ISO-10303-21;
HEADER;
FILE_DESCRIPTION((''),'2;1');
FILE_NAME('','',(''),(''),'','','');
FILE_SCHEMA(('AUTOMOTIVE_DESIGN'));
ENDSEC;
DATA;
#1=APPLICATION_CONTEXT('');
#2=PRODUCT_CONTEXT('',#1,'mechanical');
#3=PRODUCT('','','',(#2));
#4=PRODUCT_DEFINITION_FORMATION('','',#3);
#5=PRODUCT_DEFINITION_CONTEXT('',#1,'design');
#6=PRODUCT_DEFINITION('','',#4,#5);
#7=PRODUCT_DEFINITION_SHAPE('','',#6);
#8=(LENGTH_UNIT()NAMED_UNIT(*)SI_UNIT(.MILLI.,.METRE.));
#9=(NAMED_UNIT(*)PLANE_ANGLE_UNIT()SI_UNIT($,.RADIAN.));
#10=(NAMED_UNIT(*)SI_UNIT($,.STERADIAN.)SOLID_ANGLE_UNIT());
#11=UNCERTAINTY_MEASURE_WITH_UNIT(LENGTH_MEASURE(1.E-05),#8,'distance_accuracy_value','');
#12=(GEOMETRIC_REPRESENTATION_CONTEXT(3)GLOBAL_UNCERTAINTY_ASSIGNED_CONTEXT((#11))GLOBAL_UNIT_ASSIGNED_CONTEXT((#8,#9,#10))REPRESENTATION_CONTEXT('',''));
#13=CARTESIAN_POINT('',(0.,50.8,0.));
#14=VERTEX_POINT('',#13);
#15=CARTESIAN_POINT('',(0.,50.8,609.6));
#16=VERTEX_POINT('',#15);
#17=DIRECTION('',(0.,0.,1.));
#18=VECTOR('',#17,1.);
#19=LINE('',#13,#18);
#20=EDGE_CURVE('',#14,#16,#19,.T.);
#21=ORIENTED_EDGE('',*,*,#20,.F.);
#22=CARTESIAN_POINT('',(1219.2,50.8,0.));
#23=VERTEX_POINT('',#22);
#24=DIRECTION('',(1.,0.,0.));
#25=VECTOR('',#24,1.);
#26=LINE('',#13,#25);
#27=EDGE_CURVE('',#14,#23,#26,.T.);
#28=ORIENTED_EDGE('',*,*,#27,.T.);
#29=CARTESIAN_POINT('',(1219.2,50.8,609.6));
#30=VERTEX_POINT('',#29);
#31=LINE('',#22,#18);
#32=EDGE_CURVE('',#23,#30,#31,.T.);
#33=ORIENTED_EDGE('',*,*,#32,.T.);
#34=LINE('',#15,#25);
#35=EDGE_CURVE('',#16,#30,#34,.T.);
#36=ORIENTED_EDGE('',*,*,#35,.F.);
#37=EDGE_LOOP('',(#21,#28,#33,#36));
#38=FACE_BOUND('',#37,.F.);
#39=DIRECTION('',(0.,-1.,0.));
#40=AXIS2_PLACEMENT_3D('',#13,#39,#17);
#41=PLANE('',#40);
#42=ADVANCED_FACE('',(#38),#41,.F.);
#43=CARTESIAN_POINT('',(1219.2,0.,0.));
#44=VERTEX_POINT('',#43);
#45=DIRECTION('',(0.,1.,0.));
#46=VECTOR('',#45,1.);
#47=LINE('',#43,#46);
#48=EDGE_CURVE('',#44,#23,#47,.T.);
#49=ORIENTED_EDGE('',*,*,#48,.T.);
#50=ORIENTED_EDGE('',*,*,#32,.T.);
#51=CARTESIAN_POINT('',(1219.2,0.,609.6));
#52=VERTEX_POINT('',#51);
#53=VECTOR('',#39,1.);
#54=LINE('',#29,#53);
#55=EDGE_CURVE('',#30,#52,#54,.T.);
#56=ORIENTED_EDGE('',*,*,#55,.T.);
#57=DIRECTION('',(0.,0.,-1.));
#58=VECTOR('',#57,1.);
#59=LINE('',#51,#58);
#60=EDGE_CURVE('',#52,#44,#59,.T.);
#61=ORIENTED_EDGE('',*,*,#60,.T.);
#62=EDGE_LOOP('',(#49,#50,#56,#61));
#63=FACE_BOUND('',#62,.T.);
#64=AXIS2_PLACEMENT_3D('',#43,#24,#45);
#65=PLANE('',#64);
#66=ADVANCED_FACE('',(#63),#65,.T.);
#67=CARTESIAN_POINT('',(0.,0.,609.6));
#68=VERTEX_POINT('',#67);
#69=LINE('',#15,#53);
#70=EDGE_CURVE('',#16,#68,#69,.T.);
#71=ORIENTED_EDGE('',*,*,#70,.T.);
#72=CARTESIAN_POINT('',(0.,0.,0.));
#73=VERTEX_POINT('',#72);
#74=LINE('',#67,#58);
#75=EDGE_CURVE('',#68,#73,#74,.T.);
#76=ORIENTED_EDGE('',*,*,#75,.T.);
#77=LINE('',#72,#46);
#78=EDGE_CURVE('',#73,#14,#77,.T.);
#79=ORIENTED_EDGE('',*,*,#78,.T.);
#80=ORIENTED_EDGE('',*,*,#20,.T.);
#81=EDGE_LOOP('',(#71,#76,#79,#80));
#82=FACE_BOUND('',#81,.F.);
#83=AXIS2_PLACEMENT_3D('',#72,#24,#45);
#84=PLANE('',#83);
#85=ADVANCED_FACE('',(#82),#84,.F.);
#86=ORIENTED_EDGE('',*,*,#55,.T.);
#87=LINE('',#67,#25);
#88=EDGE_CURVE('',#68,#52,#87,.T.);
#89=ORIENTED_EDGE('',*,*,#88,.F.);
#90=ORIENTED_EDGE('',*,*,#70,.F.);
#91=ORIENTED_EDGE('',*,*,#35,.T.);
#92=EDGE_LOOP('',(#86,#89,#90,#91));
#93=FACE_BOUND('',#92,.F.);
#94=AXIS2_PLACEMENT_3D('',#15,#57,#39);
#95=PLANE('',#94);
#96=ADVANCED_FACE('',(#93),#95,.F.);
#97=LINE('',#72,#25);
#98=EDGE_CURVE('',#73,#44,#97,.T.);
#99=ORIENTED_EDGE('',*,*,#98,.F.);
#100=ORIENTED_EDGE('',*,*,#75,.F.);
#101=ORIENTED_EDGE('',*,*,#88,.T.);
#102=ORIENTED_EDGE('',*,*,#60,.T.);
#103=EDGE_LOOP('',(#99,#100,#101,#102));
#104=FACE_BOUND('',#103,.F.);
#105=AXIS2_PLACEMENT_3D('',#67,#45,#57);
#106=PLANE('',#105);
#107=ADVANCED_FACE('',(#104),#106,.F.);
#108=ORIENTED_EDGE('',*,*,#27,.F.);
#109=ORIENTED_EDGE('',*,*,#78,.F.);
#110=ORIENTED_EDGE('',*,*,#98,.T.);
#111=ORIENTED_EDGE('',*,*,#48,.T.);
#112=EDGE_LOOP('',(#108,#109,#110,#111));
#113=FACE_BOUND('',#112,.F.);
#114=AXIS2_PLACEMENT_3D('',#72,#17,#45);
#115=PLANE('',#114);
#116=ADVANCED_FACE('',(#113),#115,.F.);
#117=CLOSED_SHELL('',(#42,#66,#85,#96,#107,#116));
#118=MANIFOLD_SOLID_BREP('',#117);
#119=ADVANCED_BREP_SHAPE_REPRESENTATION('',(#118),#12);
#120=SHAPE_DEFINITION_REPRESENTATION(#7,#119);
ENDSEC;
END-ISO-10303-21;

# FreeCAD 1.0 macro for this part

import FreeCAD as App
import Part
import Sketcher
from FreeCAD import Vector
Q = App.Units.Quantity

doc = App.newDocument("Part")
params = doc.addObject("Spreadsheet::Sheet", "Params")
for row, (alias, value) in enumerate([
    ("sketch1_width", "2 in"),
    ("sketch1_height", "24 in"),
    ("pad1_length", "48 in"),
], start=1):
    params.set(f"A{row}", alias)
    params.set(f"B{row}", "=" + value)
    params.setAlias(f"B{row}", alias)

body = doc.addObject("PartDesign::Body", "Body")

# Sketch on YZ plane
sketch1 = doc.addObject("Sketcher::SketchObject", "Sketch")
body.addObject(sketch1)
sketch1.AttachmentSupport = (doc.YZ_Plane, [""])
sketch1.MapMode = "FlatFace"
sketch1.addGeometry([
    Part.LineSegment(Vector(0, 610, 0), Vector(0, 0, 0)),
    Part.LineSegment(Vector(0, 0, 0), Vector(51, 0, 0)),
    Part.LineSegment(Vector(51, 0, 0), Vector(51, 610, 0)),
    Part.LineSegment(Vector(51, 610, 0), Vector(0, 610, 0)),
], False)
sketch1.addConstraint([
    Sketcher.Constraint("Coincident", 0, 2, 1, 1),
    Sketcher.Constraint("Coincident", 1, 2, 2, 1),
    Sketcher.Constraint("Coincident", 2, 2, 3, 1),
    Sketcher.Constraint("Coincident", 3, 2, 0, 1),
    Sketcher.Constraint("Vertical", 0),
    Sketcher.Constraint("Horizontal", 1),
    Sketcher.Constraint("Vertical", 2),
    Sketcher.Constraint("Horizontal", 3),
    Sketcher.Constraint("Coincident", 0, 2, -1, 1),
    Sketcher.Constraint("DistanceX", 1, 1, 1, 2, Q("2 in")),
    Sketcher.Constraint("DistanceY", 0, 2, 0, 1, Q("24 in")),
])
sketch1.setExpression("Constraints[9]", "Params.sketch1_width")
sketch1.setExpression("Constraints[10]", "Params.sketch1_height")
pad1 = doc.addObject("PartDesign::Pad", "Pad")
body.addObject(pad1)
pad1.Profile = sketch1
pad1.setExpression("Length", "Params.pad1_length")

doc.recompute()
